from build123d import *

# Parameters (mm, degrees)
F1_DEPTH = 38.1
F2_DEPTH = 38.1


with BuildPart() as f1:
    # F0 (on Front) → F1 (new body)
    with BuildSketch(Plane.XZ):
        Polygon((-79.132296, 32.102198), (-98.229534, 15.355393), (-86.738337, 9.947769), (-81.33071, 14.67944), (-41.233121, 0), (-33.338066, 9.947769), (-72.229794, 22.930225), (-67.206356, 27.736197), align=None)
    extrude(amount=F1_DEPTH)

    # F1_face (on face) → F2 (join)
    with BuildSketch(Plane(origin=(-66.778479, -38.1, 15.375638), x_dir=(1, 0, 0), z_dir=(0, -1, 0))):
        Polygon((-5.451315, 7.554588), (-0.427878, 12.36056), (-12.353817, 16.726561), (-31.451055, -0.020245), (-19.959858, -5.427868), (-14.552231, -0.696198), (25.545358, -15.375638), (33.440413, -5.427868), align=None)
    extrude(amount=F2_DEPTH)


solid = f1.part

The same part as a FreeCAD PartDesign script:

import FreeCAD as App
import Part
import Sketcher
Q = App.Units.Quantity


def add_polygon(sketch, points):
    """Adds a closed chain of lines whose ends are joined by coincident constraints."""
    first, n = sketch.GeometryCount, len(points)
    for a, b in zip(points, points[1:] + points[:1]):
        sketch.addGeometry(Part.LineSegment(App.Vector(*a, 0), App.Vector(*b, 0)), False)
    for i in range(n):
        sketch.addConstraint(Sketcher.Constraint("Coincident", first + i, 2, first + (i + 1) % n, 1))

doc = App.newDocument("Part")
body = doc.addObject("PartDesign::Body", "Body")

# Sketch on XZ plane
sketch1 = body.newObject("Sketcher::SketchObject", "Sketch")
sketch1.AttachmentSupport = (doc.getObject("XZ_Plane"), [""])
sketch1.MapMode = "FlatFace"
add_polygon(sketch1, [(-79.132296, 32.102198), (-98.229534, 15.355393), (-86.738337, 9.947769), (-81.33071, 14.67944), (-41.233121, 0), (-33.338066, 9.947769), (-72.229794, 22.930225), (-67.206356, 27.736197)])  # lines 0-7
sketch1.addConstraint(Sketcher.Constraint("PointOnObject", 3, 2, -1))
sketch1.addConstraint(Sketcher.Constraint("Parallel", 3, 7))
sketch1.addConstraint(Sketcher.Constraint("Horizontal", 1, 2, 4, 2))
sketch1.addConstraint(Sketcher.Constraint("Equal", 1, 4))
sketch1.addConstraint(Sketcher.Constraint("Equal", 4, 7))
sketch1.addConstraint(Sketcher.Constraint("Distance", 0, Q("1 in")))
sketch1.addConstraint(Sketcher.Constraint("Distance", 1, Q("0.5 in")))
sketch1.addConstraint(Sketcher.Constraint("DistanceX", 7, 2, 5, 2, 6.902502))
sketch1.addConstraint(Sketcher.Constraint("DistanceY", 6, 2, 7, 2, 4.366001))
sketch1.addConstraint(Sketcher.Constraint("Distance", 2, 7.185481))
sketch1.addConstraint(Sketcher.Constraint("Distance", 5, 41.00135))
sketch1.addConstraint(Sketcher.Constraint("DistanceY", -1, 1, 1, 2, 9.947769))
sketch1.addConstraint(Sketcher.Constraint("DistanceX", 2, 2, -1, 1, 81.33071))
sketch1.addConstraint(Sketcher.Constraint("DistanceY", -1, 1, 2, 2, 14.67944))
sketch1.addConstraint(Sketcher.Constraint("DistanceX", 0, 2, 4, 2, 64.891468))
sketch1.addConstraint(Sketcher.Constraint("DistanceX", 0, 2, 5, 2, 25.99974))
pad1 = body.newObject("PartDesign::Pad", "Pad")
pad1.Profile = sketch1
pad1.Length = Q("1.5 in")

# Sketch on XZ plane
sketch2 = body.newObject("Sketcher::SketchObject", "Sketch001")
sketch2.AttachmentSupport = (doc.getObject("XZ_Plane"), [""])
sketch2.MapMode = "FlatFace"
sketch2.AttachmentOffset = App.Placement(App.Vector(0, 0, 1.5 * 25.4), App.Rotation())
add_polygon(sketch2, [(-72.229794, 22.930226), (-67.206357, 27.736198), (-79.132296, 32.102199), (-98.229534, 15.355393), (-86.738337, 9.94777), (-81.33071, 14.67944), (-41.233121, 0), (-33.338066, 9.94777)])  # lines 0-7
sketch2.addConstraint(Sketcher.Constraint("PointOnObject", 5, 2, -1))
sketch2.addConstraint(Sketcher.Constraint("Parallel", 1, 5))
sketch2.addConstraint(Sketcher.Constraint("Horizontal", 3, 2, 6, 2))
sketch2.addConstraint(Sketcher.Constraint("Equal", 1, 3))
sketch2.addConstraint(Sketcher.Constraint("Equal", 3, 6))
sketch2.addConstraint(Sketcher.Constraint("Distance", 2, Q("1 in")))
sketch2.addConstraint(Sketcher.Constraint("Distance", 1, Q("0.5 in")))
sketch2.addConstraint(Sketcher.Constraint("DistanceY", -1, 1, 0, 2, 27.736198))
sketch2.addConstraint(Sketcher.Constraint("DistanceY", -1, 1, 1, 2, 32.102199))
sketch2.addConstraint(Sketcher.Constraint("DistanceX", 1, 2, 7, 2, 6.902502))
sketch2.addConstraint(Sketcher.Constraint("Distance", 4, 7.185481))
sketch2.addConstraint(Sketcher.Constraint("Distance", 7, 41.00135))
sketch2.addConstraint(Sketcher.Constraint("DistanceY", -1, 1, 3, 2, 9.94777))
sketch2.addConstraint(Sketcher.Constraint("DistanceX", 4, 2, -1, 1, 81.33071))
sketch2.addConstraint(Sketcher.Constraint("DistanceY", -1, 1, 4, 2, 14.67944))
sketch2.addConstraint(Sketcher.Constraint("DistanceX", 2, 2, 1, 2, 19.097238))
pad2 = body.newObject("PartDesign::Pad", "Pad001")
pad2.Profile = sketch2
pad2.Length = Q("1.5 in")

doc.recompute()
